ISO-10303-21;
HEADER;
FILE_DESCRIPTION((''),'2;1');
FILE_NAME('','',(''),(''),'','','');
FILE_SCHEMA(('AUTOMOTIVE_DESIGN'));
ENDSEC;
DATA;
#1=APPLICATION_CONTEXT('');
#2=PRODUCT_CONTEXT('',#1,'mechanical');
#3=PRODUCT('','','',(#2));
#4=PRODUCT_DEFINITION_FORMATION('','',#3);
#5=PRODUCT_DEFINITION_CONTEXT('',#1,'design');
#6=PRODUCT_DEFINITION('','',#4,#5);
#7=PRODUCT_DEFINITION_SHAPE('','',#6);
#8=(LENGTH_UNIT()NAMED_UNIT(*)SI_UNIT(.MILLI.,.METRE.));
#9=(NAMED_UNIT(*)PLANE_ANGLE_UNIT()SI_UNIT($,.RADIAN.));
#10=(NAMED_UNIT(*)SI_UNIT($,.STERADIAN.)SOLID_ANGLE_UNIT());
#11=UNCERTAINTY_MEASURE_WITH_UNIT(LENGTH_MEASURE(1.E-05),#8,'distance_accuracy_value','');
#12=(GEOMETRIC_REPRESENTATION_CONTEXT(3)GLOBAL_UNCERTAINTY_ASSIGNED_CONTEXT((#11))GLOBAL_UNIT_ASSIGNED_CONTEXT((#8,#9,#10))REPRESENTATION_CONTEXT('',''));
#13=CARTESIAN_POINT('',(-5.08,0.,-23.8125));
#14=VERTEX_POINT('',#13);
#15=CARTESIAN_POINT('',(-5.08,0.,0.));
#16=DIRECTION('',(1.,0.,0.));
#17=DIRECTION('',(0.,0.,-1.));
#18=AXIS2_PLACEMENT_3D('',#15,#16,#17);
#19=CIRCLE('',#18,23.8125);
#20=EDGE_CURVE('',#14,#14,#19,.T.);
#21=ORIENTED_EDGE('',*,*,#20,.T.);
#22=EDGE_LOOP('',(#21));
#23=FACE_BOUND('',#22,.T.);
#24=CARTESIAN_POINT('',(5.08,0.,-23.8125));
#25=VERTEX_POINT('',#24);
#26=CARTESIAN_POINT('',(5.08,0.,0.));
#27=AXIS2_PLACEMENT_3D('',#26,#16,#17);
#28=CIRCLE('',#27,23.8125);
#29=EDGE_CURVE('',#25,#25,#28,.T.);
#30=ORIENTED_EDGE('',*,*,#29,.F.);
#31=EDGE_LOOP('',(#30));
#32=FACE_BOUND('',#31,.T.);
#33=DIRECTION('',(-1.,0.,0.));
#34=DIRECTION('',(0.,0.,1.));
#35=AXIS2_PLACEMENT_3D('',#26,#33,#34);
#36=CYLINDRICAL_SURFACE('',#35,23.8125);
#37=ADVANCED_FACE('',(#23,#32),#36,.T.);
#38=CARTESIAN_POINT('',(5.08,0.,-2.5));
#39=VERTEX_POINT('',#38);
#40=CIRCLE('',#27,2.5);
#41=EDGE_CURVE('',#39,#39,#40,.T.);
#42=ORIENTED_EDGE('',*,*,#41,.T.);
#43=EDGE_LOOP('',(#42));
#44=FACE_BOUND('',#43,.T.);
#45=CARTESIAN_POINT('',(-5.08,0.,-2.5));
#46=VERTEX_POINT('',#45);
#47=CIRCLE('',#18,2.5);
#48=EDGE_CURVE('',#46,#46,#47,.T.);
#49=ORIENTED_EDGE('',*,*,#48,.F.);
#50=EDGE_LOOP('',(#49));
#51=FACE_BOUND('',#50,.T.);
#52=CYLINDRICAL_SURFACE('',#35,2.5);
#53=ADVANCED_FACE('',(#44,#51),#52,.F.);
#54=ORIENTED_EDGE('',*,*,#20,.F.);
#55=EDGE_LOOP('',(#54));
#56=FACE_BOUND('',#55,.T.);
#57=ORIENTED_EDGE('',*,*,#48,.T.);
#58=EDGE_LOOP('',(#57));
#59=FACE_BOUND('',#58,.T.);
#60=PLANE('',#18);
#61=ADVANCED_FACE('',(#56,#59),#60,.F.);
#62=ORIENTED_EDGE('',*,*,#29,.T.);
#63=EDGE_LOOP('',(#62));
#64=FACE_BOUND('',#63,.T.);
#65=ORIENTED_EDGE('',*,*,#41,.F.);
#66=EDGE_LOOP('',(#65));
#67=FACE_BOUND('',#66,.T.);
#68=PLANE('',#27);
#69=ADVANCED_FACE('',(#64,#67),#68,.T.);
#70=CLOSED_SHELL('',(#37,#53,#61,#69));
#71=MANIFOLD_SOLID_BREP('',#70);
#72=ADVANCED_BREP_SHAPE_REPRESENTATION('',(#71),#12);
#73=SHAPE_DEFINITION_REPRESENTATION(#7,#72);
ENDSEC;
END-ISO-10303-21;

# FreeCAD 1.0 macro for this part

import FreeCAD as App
import Part
import Sketcher

V = App.Vector
Q = App.Units.Quantity

doc = App.newDocument("Part")
body = doc.addObject("PartDesign::Body", "Body")

sketch1 = body.newObject("Sketcher::SketchObject", "Sketch")
sketch1.AttachmentSupport = (doc.getObject("YZ_Plane"), [""])
sketch1.MapMode = "FlatFace"
sketch1.addGeometry(Part.Circle(V(0, 0, 0), V(0, 0, 1), 23.8), False)
sketch1.addGeometry(Part.Circle(V(0, 0, 0), V(0, 0, 1), 2.5), False)
sketch1.addConstraint(Sketcher.Constraint("Coincident", 0, 3, -1, 1))
sketch1.addConstraint(Sketcher.Constraint("Coincident", 1, 3, -1, 1))
sketch1.addConstraint(Sketcher.Constraint("Diameter", 0, Q("1.875 in")))
sketch1.addConstraint(Sketcher.Constraint("Diameter", 1, 5.0))
pad1 = body.newObject("PartDesign::Pad", "Pad")
pad1.Profile = sketch1
pad1.Length = Q("0.4 in")
pad1.Midplane = True

doc.recompute()
